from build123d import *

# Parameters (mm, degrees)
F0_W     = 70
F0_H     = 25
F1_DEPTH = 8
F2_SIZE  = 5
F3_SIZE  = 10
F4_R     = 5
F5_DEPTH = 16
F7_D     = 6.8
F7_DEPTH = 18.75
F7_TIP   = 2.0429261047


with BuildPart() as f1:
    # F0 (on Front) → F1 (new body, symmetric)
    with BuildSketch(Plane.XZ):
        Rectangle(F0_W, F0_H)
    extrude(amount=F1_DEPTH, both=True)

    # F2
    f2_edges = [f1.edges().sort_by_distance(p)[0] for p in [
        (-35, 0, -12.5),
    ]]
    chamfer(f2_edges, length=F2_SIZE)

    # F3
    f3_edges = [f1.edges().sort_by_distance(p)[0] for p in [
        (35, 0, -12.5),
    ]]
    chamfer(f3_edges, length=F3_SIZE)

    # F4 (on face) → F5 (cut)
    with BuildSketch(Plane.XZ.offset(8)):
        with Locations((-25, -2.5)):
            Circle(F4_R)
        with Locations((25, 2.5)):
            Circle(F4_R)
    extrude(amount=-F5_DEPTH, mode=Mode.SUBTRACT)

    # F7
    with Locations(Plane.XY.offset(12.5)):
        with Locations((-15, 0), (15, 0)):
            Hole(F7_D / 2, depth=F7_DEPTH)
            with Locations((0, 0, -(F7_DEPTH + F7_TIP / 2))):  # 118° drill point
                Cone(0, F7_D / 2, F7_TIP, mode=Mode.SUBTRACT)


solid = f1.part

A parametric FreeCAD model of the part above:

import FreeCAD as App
import Part
import Sketcher
Q = App.Units.Quantity


def edges_at(feature, points):
    """Names of the edges that pass closest to the given points."""
    edges = feature.Shape.Edges
    near = lambda p: min(range(len(edges)), key=lambda i: edges[i].distToShape(Part.Vertex(*p))[0])
    return sorted({f"Edge{near(p) + 1}" for p in points})

doc = App.newDocument("Part")
body = doc.addObject("PartDesign::Body", "Body")

sketch1 = body.newObject("Sketcher::SketchObject", "Sketch")
sketch1.AttachmentSupport = (doc.getObject("XZ_Plane"), [""])
sketch1.MapMode = "FlatFace"
sketch1.addGeometry(Part.LineSegment(App.Vector(-35, 12.5, 0), App.Vector(-35, -12.5, 0)), False)
sketch1.addGeometry(Part.LineSegment(App.Vector(-35, -12.5, 0), App.Vector(35, -12.5, 0)), False)
sketch1.addGeometry(Part.LineSegment(App.Vector(35, -12.5, 0), App.Vector(35, 12.5, 0)), False)
sketch1.addGeometry(Part.LineSegment(App.Vector(35, 12.5, 0), App.Vector(-35, 12.5, 0)), False)
sketch1.addConstraint(Sketcher.Constraint("Coincident", 0, 2, 1, 1))
sketch1.addConstraint(Sketcher.Constraint("Coincident", 1, 2, 2, 1))
sketch1.addConstraint(Sketcher.Constraint("Coincident", 2, 2, 3, 1))
sketch1.addConstraint(Sketcher.Constraint("Coincident", 3, 2, 0, 1))
sketch1.addConstraint(Sketcher.Constraint("Vertical", 0))
sketch1.addConstraint(Sketcher.Constraint("Horizontal", 1))
sketch1.addConstraint(Sketcher.Constraint("Vertical", 2))
sketch1.addConstraint(Sketcher.Constraint("Horizontal", 3))
sketch1.addConstraint(Sketcher.Constraint("Symmetric", 0, 2, 2, 2, -1, 1))
sketch1.addConstraint(Sketcher.Constraint("DistanceX", 1, 1, 1, 2, Q("70 mm")))
sketch1.addConstraint(Sketcher.Constraint("DistanceY", 0, 2, 0, 1, Q("25 mm")))
pad1 = body.newObject("PartDesign::Pad", "Pad")
pad1.Profile = sketch1
pad1.Length = 16
pad1.Midplane = True
doc.recompute()

chamfer = body.newObject("PartDesign::Chamfer", "Chamfer")
chamfer.Base = (pad1, edges_at(pad1, [(-35, 0, -12.5)]))
chamfer.Size = 5
doc.recompute()

chamfer2 = body.newObject("PartDesign::Chamfer", "Chamfer001")
chamfer2.Base = (chamfer, edges_at(chamfer, [(35, 0, -12.5)]))
chamfer2.Size = 10

sketch2 = body.newObject("Sketcher::SketchObject", "Sketch001")
sketch2.AttachmentSupport = (doc.getObject("XZ_Plane"), [""])
sketch2.MapMode = "FlatFace"
sketch2.AttachmentOffset = App.Placement(App.Vector(0, 0, 8), App.Rotation())
sketch2.addGeometry(Part.Circle(App.Vector(-25, -2.5, 0), App.Vector(0, 0, 1), 5), False)
sketch2.addGeometry(Part.Circle(App.Vector(25, 2.5, 0), App.Vector(0, 0, 1), 5), False)
sketch2.addConstraint(Sketcher.Constraint("Equal", 0, 1))
sketch2.addConstraint(Sketcher.Constraint("Symmetric", 0, 3, 1, 3, -1, 1))
sketch2.addConstraint(Sketcher.Constraint("Diameter", 0, Q("10 mm")))
sketch2.addConstraint(Sketcher.Constraint("DistanceX", 0, 3, -1, 1, Q("25 mm")))
sketch2.addConstraint(Sketcher.Constraint("DistanceY", 0, 3, 1, 3, Q("5 mm")))
pocket1 = body.newObject("PartDesign::Pocket", "Pocket")
pocket1.Profile = sketch2
pocket1.Length = 16

sketch3 = body.newObject("Sketcher::SketchObject", "Sketch002")
sketch3.AttachmentSupport = (doc.getObject("XY_Plane"), [""])
sketch3.MapMode = "FlatFace"
sketch3.AttachmentOffset = App.Placement(App.Vector(0, 0, 12.5), App.Rotation())
sketch3.addGeometry(Part.Circle(App.Vector(-15, 0, 0), App.Vector(0, 0, 1), 3.4), False)
sketch3.addGeometry(Part.Circle(App.Vector(15, 0, 0), App.Vector(0, 0, 1), 3.4), False)
sketch3.addConstraint(Sketcher.Constraint("Equal", 0, 1))
sketch3.addConstraint(Sketcher.Constraint("Symmetric", 0, 3, 1, 3, -1, 1))
sketch3.addConstraint(Sketcher.Constraint("PointOnObject", 0, 3, -1))
sketch3.addConstraint(Sketcher.Constraint("Diameter", 0, Q("6.8 mm")))
sketch3.addConstraint(Sketcher.Constraint("DistanceX", 0, 3, -1, 1, Q("15 mm")))
doc.recompute()
hole = body.newObject("PartDesign::Hole", "Hole")
hole.Profile = sketch3
hole.ThreadType = "None"
hole.Diameter = 6.8
hole.DepthType = "Dimension"
hole.Depth = 18.75
hole.DrillPoint = "Angled"
hole.DrillPointAngle = 118

doc.recompute()
